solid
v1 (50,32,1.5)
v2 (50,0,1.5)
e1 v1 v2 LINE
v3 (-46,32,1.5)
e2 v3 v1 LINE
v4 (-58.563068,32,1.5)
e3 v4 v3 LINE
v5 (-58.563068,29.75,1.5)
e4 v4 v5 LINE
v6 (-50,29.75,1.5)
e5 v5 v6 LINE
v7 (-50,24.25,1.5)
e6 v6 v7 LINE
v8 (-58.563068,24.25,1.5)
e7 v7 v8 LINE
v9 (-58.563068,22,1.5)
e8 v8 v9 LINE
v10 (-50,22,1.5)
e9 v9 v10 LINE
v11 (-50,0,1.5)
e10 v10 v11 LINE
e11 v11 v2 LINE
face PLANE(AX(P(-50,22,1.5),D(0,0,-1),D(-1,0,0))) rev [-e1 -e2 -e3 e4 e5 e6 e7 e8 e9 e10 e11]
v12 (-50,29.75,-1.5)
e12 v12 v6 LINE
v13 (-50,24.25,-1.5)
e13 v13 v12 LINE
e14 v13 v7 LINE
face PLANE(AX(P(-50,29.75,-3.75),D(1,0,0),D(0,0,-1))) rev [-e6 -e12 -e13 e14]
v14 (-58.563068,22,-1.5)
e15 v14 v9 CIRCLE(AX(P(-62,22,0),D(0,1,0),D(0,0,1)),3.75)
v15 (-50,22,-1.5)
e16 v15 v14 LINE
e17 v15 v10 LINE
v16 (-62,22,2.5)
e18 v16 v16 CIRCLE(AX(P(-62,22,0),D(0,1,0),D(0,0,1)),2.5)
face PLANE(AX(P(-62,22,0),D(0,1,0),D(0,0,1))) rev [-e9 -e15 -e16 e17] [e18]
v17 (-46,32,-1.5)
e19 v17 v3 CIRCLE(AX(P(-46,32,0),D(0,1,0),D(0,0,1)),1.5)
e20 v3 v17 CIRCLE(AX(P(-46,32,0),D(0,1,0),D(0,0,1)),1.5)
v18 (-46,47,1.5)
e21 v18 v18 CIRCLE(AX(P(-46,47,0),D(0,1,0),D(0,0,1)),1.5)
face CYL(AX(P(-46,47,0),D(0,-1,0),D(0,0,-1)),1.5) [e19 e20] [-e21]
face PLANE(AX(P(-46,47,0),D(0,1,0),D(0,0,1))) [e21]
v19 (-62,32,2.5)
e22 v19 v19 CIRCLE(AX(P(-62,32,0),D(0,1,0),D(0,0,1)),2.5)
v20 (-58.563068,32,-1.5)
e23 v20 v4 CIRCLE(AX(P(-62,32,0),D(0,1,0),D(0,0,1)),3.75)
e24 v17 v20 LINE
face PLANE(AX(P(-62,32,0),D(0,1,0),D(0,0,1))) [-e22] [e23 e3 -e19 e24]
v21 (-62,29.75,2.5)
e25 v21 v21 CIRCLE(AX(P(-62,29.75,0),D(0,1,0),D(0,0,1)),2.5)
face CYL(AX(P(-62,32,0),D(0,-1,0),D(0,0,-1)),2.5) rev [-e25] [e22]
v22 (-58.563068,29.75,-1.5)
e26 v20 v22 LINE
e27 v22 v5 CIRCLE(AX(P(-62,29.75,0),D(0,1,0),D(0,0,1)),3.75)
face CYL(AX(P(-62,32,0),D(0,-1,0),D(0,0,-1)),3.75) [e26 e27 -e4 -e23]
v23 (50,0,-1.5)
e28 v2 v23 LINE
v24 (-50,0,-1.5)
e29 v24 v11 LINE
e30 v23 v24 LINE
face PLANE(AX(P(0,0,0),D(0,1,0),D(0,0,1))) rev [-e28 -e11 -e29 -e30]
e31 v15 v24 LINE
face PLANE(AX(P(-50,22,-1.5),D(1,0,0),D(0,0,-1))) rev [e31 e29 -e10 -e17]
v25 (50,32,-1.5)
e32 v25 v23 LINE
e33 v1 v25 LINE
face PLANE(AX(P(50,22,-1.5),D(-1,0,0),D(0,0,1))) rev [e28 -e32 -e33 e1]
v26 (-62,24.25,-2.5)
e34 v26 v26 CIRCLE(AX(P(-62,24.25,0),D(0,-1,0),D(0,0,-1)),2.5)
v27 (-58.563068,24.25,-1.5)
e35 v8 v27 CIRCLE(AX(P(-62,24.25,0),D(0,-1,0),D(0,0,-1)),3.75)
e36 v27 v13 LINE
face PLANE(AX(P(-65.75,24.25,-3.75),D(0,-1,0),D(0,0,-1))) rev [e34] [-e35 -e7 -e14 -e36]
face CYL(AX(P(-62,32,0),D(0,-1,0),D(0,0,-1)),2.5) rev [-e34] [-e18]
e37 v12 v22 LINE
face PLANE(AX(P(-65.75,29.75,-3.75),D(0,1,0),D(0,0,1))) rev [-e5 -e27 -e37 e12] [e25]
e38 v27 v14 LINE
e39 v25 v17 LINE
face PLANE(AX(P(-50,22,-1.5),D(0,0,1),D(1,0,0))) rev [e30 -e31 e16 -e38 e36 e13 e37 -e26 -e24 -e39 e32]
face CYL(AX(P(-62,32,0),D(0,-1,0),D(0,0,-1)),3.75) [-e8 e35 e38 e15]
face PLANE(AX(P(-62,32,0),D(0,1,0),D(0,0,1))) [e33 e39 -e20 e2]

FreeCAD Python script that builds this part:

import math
import FreeCAD as App
import Part
import Sketcher


def add_polygon(sketch, points):
    """Adds a closed chain of lines whose ends are joined by coincident constraints."""
    first, n = sketch.GeometryCount, len(points)
    for a, b in zip(points, points[1:] + points[:1]):
        sketch.addGeometry(Part.LineSegment(App.Vector(*a, 0), App.Vector(*b, 0)), False)
    for i in range(n):
        sketch.addConstraint(Sketcher.Constraint("Coincident", first + i, 2, first + (i + 1) % n, 1))

doc = App.newDocument("Part")
body = doc.addObject("PartDesign::Body", "Body")

sketch1 = body.newObject("Sketcher::SketchObject", "Sketch")
sketch1.AttachmentSupport = (doc.getObject("XZ_Plane"), [""])
sketch1.MapMode = "FlatFace"
add_polygon(sketch1, [(-50, -1.5), (-50, 1.5), (50, 1.5), (50, -1.5)])
sketch1.addConstraint([
    Sketcher.Constraint("Vertical", 0),
    Sketcher.Constraint("Horizontal", 1),
    Sketcher.Constraint("Vertical", 2),
    Sketcher.Constraint("Horizontal", 3),
    Sketcher.Constraint("Symmetric", 0, 2, 2, 2, -1, 1),
    Sketcher.Constraint("DistanceX", 1, 1, 1, 2, 100.0),
    Sketcher.Constraint("DistanceY", 0, 1, 0, 2, 3.0),
])
pad1 = body.newObject("PartDesign::Pad", "Pad")
pad1.Profile = sketch1
pad1.Length = 22
pad1.Reversed = True

sketch2 = body.newObject("Sketcher::SketchObject", "Sketch001")
sketch2.AttachmentSupport = (doc.getObject("XZ_Plane"), [""])
sketch2.MapMode = "FlatFace"
sketch2.AttachmentOffset = App.Placement(App.Vector(0, 0, -22), App.Rotation())
sketch2.addGeometry([
    Part.LineSegment(App.Vector(50, -1.5, 0), App.Vector(-58.6, -1.5, 0)),
    Part.ArcOfCircle(Part.Circle(App.Vector(-62, 0, 0), App.Vector(0, 0, 1), 3.8), math.radians(24), math.radians(336)),
    Part.LineSegment(App.Vector(-58.6, 1.5, 0), App.Vector(50, 1.5, 0)),
    Part.LineSegment(App.Vector(50, 1.5, 0), App.Vector(50, -1.5, 0)),
    Part.Circle(App.Vector(-62, 0, 0), App.Vector(0, 0, 1), 2.5),
], False)
sketch2.addConstraint([
    Sketcher.Constraint("Coincident", 0, 2, 1, 2),
    Sketcher.Constraint("Coincident", 1, 1, 2, 1),
    Sketcher.Constraint("Coincident", 2, 2, 3, 1),
    Sketcher.Constraint("Coincident", 3, 2, 0, 1),
    Sketcher.Constraint("Horizontal", 0),
    Sketcher.Constraint("Horizontal", 2),
    Sketcher.Constraint("Vertical", 3),
    Sketcher.Constraint("Coincident", 4, 3, 1, 3),
    Sketcher.Constraint("Symmetric", 0, 2, 1, 1, -1),
    Sketcher.Constraint("Diameter", 4, 5.0),
    Sketcher.Constraint("DistanceY", 3, 2, 3, 1, 3.0),
    Sketcher.Constraint("Radius", 1, 3.75),
    Sketcher.Constraint("DistanceX", 1, 3, -1, 1, 62.0),
    Sketcher.Constraint("DistanceX", -1, 1, 2, 2, 50.0),
])
pad2 = body.newObject("PartDesign::Pad", "Pad001")
pad2.Profile = sketch2
pad2.Length = 10
pad2.Reversed = True

sketch3 = body.newObject("Sketcher::SketchObject", "Sketch002")
sketch3.AttachmentSupport = (doc.getObject("XZ_Plane"), [""])
sketch3.MapMode = "FlatFace"
sketch3.AttachmentOffset = App.Placement(App.Vector(0, 0, -32), App.Rotation())
sketch3.addGeometry(Part.Circle(App.Vector(-46, 0, 0), App.Vector(0, 0, 1), 1.5), False)
sketch3.addConstraint([
    Sketcher.Constraint("PointOnObject", 0, 3, -1),
    Sketcher.Constraint("Diameter", 0, 3.0),
    Sketcher.Constraint("DistanceX", 0, 3, -1, 1, 46.0),
])
pad3 = body.newObject("PartDesign::Pad", "Pad002")
pad3.Profile = sketch3
pad3.Length = 15
pad3.Reversed = True

sketch4 = body.newObject("Sketcher::SketchObject", "Sketch003")
sketch4.AttachmentSupport = (doc.getObject("XY_Plane"), [""])
sketch4.MapMode = "FlatFace"
sketch4.AttachmentOffset = App.Placement(App.Vector(0, 0, 1.5), App.Rotation())
add_polygon(sketch4, [(-66, 24), (-50, 24), (-50, 30), (-66, 30)])
sketch4.addConstraint([
    Sketcher.Constraint("Horizontal", 0),
    Sketcher.Constraint("Vertical", 1),
    Sketcher.Constraint("Horizontal", 2),
    Sketcher.Constraint("Vertical", 3),
    Sketcher.Constraint("DistanceY", 1, 1, 1, 2, 5.5),
    Sketcher.Constraint("DistanceX", 0, 2, -1, 1, 50.0),
    Sketcher.Constraint("DistanceX", 0, 1, 0, 2, 15.75),
    Sketcher.Constraint("DistanceY", -1, 1, 0, 2, 24.25),
])
pocket1 = body.newObject("PartDesign::Pocket", "Pocket")
pocket1.Profile = sketch4
pocket1.Type = "ThroughAll"
pocket1.Midplane = True

doc.recompute()
